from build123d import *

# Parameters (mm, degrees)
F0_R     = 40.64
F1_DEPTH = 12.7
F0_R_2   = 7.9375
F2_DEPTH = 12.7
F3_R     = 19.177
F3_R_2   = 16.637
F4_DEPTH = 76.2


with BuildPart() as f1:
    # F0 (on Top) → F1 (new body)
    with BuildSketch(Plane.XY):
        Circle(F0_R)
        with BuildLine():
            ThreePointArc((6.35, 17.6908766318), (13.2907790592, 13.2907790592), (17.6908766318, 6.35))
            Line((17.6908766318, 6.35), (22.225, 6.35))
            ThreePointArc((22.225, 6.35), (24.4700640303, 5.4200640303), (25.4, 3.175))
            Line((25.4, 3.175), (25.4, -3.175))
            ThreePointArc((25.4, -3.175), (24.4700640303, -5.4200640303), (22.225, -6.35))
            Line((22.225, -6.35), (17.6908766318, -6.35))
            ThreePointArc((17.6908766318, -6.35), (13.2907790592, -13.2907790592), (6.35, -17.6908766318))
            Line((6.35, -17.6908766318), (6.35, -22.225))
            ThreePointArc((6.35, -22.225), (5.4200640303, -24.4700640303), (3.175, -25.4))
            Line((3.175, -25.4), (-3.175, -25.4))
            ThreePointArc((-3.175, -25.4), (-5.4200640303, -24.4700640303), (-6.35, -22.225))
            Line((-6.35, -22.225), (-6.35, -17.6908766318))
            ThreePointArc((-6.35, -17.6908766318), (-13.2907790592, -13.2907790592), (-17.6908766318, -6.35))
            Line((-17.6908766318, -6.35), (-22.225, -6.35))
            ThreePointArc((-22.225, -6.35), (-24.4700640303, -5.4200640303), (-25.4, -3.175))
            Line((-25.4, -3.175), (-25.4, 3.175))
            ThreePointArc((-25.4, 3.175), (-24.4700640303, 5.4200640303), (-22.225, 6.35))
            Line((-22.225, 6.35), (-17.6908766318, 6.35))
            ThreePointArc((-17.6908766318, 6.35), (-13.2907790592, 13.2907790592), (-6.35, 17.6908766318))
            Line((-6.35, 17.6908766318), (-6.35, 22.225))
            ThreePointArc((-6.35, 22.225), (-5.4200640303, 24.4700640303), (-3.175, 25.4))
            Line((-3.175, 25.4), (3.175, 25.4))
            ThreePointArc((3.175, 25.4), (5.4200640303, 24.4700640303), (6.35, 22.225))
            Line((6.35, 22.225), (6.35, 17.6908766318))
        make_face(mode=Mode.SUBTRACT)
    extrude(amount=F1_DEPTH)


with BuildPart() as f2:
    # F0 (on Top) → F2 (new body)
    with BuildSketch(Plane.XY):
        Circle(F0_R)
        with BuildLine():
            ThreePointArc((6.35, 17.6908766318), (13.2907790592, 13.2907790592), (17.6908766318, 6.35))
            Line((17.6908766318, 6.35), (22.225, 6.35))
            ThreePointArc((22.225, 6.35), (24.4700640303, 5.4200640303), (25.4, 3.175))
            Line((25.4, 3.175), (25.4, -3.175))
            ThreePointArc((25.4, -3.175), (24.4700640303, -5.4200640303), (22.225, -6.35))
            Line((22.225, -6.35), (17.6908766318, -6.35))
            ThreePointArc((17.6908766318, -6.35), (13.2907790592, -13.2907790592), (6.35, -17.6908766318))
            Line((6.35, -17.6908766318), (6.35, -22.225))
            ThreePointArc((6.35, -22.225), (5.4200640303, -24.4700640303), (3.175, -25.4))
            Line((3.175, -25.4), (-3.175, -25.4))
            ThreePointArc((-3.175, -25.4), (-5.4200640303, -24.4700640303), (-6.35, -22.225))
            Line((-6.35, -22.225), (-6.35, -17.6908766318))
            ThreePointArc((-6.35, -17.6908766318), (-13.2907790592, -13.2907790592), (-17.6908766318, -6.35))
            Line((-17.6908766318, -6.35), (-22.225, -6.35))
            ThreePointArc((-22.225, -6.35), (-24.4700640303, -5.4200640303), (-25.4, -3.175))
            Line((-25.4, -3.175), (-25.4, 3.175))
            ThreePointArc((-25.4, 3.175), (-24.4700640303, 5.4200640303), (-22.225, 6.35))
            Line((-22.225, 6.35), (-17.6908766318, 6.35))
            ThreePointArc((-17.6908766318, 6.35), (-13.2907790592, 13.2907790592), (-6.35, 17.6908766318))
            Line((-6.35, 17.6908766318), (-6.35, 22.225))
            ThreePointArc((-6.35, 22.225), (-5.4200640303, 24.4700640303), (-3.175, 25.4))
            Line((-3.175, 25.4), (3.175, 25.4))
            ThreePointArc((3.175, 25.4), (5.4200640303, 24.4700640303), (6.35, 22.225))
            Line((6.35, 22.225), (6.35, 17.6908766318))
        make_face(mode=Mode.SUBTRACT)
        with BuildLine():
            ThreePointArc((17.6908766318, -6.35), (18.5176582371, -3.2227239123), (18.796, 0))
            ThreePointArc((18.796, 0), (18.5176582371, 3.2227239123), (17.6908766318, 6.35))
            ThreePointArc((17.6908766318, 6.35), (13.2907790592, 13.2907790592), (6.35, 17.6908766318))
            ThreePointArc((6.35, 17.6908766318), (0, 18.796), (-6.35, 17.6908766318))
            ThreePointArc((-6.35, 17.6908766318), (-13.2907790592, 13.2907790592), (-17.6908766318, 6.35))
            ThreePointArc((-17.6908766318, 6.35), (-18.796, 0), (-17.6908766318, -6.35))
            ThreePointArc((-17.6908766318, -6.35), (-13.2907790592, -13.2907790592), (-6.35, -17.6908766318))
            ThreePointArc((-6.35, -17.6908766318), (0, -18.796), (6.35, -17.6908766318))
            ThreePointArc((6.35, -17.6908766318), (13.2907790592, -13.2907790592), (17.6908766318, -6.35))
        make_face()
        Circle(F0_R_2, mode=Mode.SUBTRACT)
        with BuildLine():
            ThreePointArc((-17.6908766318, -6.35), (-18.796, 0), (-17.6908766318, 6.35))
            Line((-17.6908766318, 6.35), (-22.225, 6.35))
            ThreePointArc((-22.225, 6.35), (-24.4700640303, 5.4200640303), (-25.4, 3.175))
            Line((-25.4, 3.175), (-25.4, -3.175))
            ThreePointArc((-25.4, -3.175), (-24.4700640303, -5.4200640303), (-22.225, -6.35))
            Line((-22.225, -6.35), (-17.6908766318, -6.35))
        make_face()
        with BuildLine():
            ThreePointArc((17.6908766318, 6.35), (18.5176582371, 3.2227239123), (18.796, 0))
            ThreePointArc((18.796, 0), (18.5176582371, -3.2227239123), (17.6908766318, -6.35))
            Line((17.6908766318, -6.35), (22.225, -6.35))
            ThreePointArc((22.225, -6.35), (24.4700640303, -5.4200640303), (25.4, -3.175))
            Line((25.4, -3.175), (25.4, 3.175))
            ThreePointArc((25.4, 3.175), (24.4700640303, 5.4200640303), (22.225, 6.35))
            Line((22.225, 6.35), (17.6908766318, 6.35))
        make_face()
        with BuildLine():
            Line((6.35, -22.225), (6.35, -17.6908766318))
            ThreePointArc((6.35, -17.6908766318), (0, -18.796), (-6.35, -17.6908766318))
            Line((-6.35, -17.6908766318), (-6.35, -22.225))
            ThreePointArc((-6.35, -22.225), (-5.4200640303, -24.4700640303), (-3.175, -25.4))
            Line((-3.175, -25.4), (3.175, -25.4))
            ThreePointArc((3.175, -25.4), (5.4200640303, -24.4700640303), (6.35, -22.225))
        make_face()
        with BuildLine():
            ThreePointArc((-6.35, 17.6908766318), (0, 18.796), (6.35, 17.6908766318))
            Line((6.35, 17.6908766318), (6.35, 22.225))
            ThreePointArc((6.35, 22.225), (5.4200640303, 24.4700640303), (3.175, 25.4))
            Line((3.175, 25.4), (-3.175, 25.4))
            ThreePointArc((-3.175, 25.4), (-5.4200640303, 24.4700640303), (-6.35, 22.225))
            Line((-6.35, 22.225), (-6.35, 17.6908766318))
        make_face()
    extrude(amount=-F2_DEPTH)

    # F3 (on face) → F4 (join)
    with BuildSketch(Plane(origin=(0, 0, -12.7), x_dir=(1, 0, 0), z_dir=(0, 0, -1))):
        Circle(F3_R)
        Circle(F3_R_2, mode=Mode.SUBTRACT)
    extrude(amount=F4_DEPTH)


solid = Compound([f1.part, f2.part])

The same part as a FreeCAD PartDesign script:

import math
import FreeCAD as App
import Part
import Sketcher
Q = App.Units.Quantity

doc = App.newDocument("Part")
params = doc.addObject("Spreadsheet::Sheet", "Params")
for row, (alias, value) in enumerate([
    ("sketch1_diameter", "3.2 in"),
    ("sketch1_radius", "0.74 in"),
    ("sketch1_radius2", "0.125 in"),
    ("pad1_length", "0.5 in"),
    ("sketch2_diameter", "3.2 in"),
    ("sketch2_diameter2", "0.625 in"),
    ("pad2_length", "0.5 in"),
    ("sketch3_diameter", "1.51 in"),
    ("sketch3_diameter2", "1.31 in"),
    ("pad3_length", "3 in"),
], start=1):
    params.set(f"A{row}", alias)
    params.set(f"B{row}", "=" + value)
    params.setAlias(f"B{row}", alias)

body = doc.addObject("PartDesign::Body", "Body")

sketch1 = body.newObject("Sketcher::SketchObject", "Sketch")
sketch1.AttachmentSupport = (doc.getObject("XY_Plane"), [""])
sketch1.MapMode = "FlatFace"
sketch1.addGeometry(Part.Circle(App.Vector(0, 0, 0), App.Vector(0, 0, 1), 40.6), False)
sketch1.addGeometry(Part.LineSegment(App.Vector(6.3, 22.2, 0), App.Vector(6.3, 17.7, 0)), False)
sketch1.addGeometry(Part.ArcOfCircle(Part.Circle(App.Vector(0, 0, 0), App.Vector(0, 0, 1), 18.8), math.radians(20), math.radians(70)), False)
sketch1.addGeometry(Part.LineSegment(App.Vector(17.7, 6.3, 0), App.Vector(22.2, 6.3, 0)), False)
sketch1.addGeometry(Part.ArcOfCircle(Part.Circle(App.Vector(22.2, 3.2, 0), App.Vector(0, 0, 1), 3.2), math.radians(0), math.radians(90)), False)
sketch1.addGeometry(Part.LineSegment(App.Vector(25.4, 3.2, 0), App.Vector(25.4, -3.2, 0)), False)
sketch1.addGeometry(Part.ArcOfCircle(Part.Circle(App.Vector(22.2, -3.2, 0), App.Vector(0, 0, 1), 3.2), math.radians(-90), math.radians(0)), False)
sketch1.addGeometry(Part.LineSegment(App.Vector(22.2, -6.3, 0), App.Vector(17.7, -6.3, 0)), False)
sketch1.addGeometry(Part.ArcOfCircle(Part.Circle(App.Vector(0, 0, 0), App.Vector(0, 0, 1), 18.8), math.radians(-70), math.radians(-20)), False)
sketch1.addGeometry(Part.LineSegment(App.Vector(6.3, -17.7, 0), App.Vector(6.3, -22.2, 0)), False)
sketch1.addGeometry(Part.ArcOfCircle(Part.Circle(App.Vector(3.2, -22.2, 0), App.Vector(0, 0, 1), 3.2), math.radians(-90), math.radians(0)), False)
sketch1.addGeometry(Part.LineSegment(App.Vector(3.2, -25.4, 0), App.Vector(-3.2, -25.4, 0)), False)
sketch1.addGeometry(Part.ArcOfCircle(Part.Circle(App.Vector(-3.2, -22.2, 0), App.Vector(0, 0, 1), 3.2), math.radians(180), math.radians(270)), False)
sketch1.addGeometry(Part.LineSegment(App.Vector(-6.3, -22.2, 0), App.Vector(-6.3, -17.7, 0)), False)
sketch1.addGeometry(Part.ArcOfCircle(Part.Circle(App.Vector(0, 0, 0), App.Vector(0, 0, 1), 18.8), math.radians(-160), math.radians(-110)), False)
sketch1.addGeometry(Part.LineSegment(App.Vector(-17.7, -6.3, 0), App.Vector(-22.2, -6.3, 0)), False)
sketch1.addGeometry(Part.ArcOfCircle(Part.Circle(App.Vector(-22.2, -3.2, 0), App.Vector(0, 0, 1), 3.2), math.radians(180), math.radians(270)), False)
sketch1.addGeometry(Part.LineSegment(App.Vector(-25.4, -3.2, 0), App.Vector(-25.4, 3.2, 0)), False)
sketch1.addGeometry(Part.ArcOfCircle(Part.Circle(App.Vector(-22.2, 3.2, 0), App.Vector(0, 0, 1), 3.2), math.radians(90), math.radians(180)), False)
sketch1.addGeometry(Part.LineSegment(App.Vector(-22.2, 6.3, 0), App.Vector(-17.7, 6.3, 0)), False)
sketch1.addGeometry(Part.ArcOfCircle(Part.Circle(App.Vector(0, 0, 0), App.Vector(0, 0, 1), 18.8), math.radians(110), math.radians(160)), False)
sketch1.addGeometry(Part.LineSegment(App.Vector(-6.3, 17.7, 0), App.Vector(-6.3, 22.2, 0)), False)
sketch1.addGeometry(Part.ArcOfCircle(Part.Circle(App.Vector(-3.2, 22.2, 0), App.Vector(0, 0, 1), 3.2), math.radians(90), math.radians(180)), False)
sketch1.addGeometry(Part.LineSegment(App.Vector(-3.2, 25.4, 0), App.Vector(3.2, 25.4, 0)), False)
sketch1.addGeometry(Part.ArcOfCircle(Part.Circle(App.Vector(3.2, 22.2, 0), App.Vector(0, 0, 1), 3.2), math.radians(0), math.radians(90)), False)
sketch1.addConstraint(Sketcher.Constraint("Coincident", 1, 2, 2, 2))
sketch1.addConstraint(Sketcher.Constraint("Coincident", 2, 1, 3, 1))
sketch1.addConstraint(Sketcher.Constraint("Tangent", 3, 2, 4, 2))
sketch1.addConstraint(Sketcher.Constraint("Tangent", 4, 1, 5, 1))
sketch1.addConstraint(Sketcher.Constraint("Tangent", 5, 2, 6, 2))
sketch1.addConstraint(Sketcher.Constraint("Tangent", 6, 1, 7, 1))
sketch1.addConstraint(Sketcher.Constraint("Coincident", 7, 2, 8, 2))
sketch1.addConstraint(Sketcher.Constraint("Coincident", 8, 1, 9, 1))
sketch1.addConstraint(Sketcher.Constraint("Tangent", 9, 2, 10, 2))
sketch1.addConstraint(Sketcher.Constraint("Tangent", 10, 1, 11, 1))
sketch1.addConstraint(Sketcher.Constraint("Tangent", 11, 2, 12, 2))
sketch1.addConstraint(Sketcher.Constraint("Tangent", 12, 1, 13, 1))
sketch1.addConstraint(Sketcher.Constraint("Coincident", 13, 2, 14, 2))
sketch1.addConstraint(Sketcher.Constraint("Coincident", 14, 1, 15, 1))
sketch1.addConstraint(Sketcher.Constraint("Tangent", 15, 2, 16, 2))
sketch1.addConstraint(Sketcher.Constraint("Tangent", 16, 1, 17, 1))
sketch1.addConstraint(Sketcher.Constraint("Tangent", 17, 2, 18, 2))
sketch1.addConstraint(Sketcher.Constraint("Tangent", 18, 1, 19, 1))
sketch1.addConstraint(Sketcher.Constraint("Coincident", 19, 2, 20, 2))
sketch1.addConstraint(Sketcher.Constraint("Coincident", 20, 1, 21, 1))
sketch1.addConstraint(Sketcher.Constraint("Tangent", 21, 2, 22, 2))
sketch1.addConstraint(Sketcher.Constraint("Tangent", 22, 1, 23, 1))
sketch1.addConstraint(Sketcher.Constraint("Tangent", 23, 2, 24, 2))
sketch1.addConstraint(Sketcher.Constraint("Tangent", 24, 1, 1, 1))
sketch1.addConstraint(Sketcher.Constraint("Vertical", 1))
sketch1.addConstraint(Sketcher.Constraint("Horizontal", 3))
sketch1.addConstraint(Sketcher.Constraint("Vertical", 5))
sketch1.addConstraint(Sketcher.Constraint("Horizontal", 7))
sketch1.addConstraint(Sketcher.Constraint("Vertical", 9))
sketch1.addConstraint(Sketcher.Constraint("Horizontal", 11))
sketch1.addConstraint(Sketcher.Constraint("Vertical", 13))
sketch1.addConstraint(Sketcher.Constraint("Horizontal", 15))
sketch1.addConstraint(Sketcher.Constraint("Vertical", 17))
sketch1.addConstraint(Sketcher.Constraint("Horizontal", 19))
sketch1.addConstraint(Sketcher.Constraint("Vertical", 21))
sketch1.addConstraint(Sketcher.Constraint("Horizontal", 23))
sketch1.addConstraint(Sketcher.Constraint("Coincident", 0, 3, -1, 1))
sketch1.addConstraint(Sketcher.Constraint("Coincident", 2, 3, -1, 1))
sketch1.addConstraint(Sketcher.Constraint("Coincident", 8, 3, -1, 1))
sketch1.addConstraint(Sketcher.Constraint("Coincident", 14, 3, -1, 1))
sketch1.addConstraint(Sketcher.Constraint("Coincident", 20, 3, -1, 1))
sketch1.addConstraint(Sketcher.Constraint("Equal", 4, 6))
sketch1.addConstraint(Sketcher.Constraint("Equal", 2, 8))
sketch1.addConstraint(Sketcher.Constraint("Equal", 6, 10))
sketch1.addConstraint(Sketcher.Constraint("Equal", 10, 12))
sketch1.addConstraint(Sketcher.Constraint("Equal", 8, 14))
sketch1.addConstraint(Sketcher.Constraint("Equal", 12, 16))
sketch1.addConstraint(Sketcher.Constraint("Equal", 16, 18))
sketch1.addConstraint(Sketcher.Constraint("Equal", 14, 20))
sketch1.addConstraint(Sketcher.Constraint("Equal", 18, 22))
sketch1.addConstraint(Sketcher.Constraint("Equal", 22, 24))
sketch1.addConstraint(Sketcher.Constraint("Symmetric", 4, 3, 16, 3, -1, 1))
sketch1.addConstraint(Sketcher.Constraint("Symmetric", 10, 3, 22, 3, -1, 1))
sketch1.addConstraint(Sketcher.Constraint("Horizontal", 6, 3, 16, 3))
sketch1.addConstraint(Sketcher.Constraint("Horizontal", 4, 3, 18, 3))
sketch1.addConstraint(Sketcher.Constraint("Horizontal", 8, 1, 13, 2))
sketch1.addConstraint(Sketcher.Constraint("Horizontal", 1, 2, 20, 1))
sketch1.addConstraint(Sketcher.Constraint("Equal", 19, 1))
sketch1.addConstraint(Sketcher.Constraint("Equal", 23, 5))
sketch1.addConstraint(Sketcher.Constraint("Diameter", 0, Q("3.2 in")))
sketch1.addConstraint(Sketcher.Constraint("Radius", 2, Q("0.74 in")))
sketch1.addConstraint(Sketcher.Constraint("DistanceX", -1, 1, 4, 1, Q("1 in")))
sketch1.addConstraint(Sketcher.Constraint("Radius", 4, Q("0.125 in")))
sketch1.addConstraint(Sketcher.Constraint("DistanceY", 10, 3, 4, 3, Q("1 in")))
sketch1.setExpression("Constraints[59]", "Params.sketch1_diameter")
sketch1.setExpression("Constraints[60]", "Params.sketch1_radius")
sketch1.setExpression("Constraints[62]", "Params.sketch1_radius2")
pad1 = body.newObject("PartDesign::Pad", "Pad")
pad1.Profile = sketch1
pad1.setExpression("Length", "Params.pad1_length")
body2 = doc.addObject("PartDesign::Body", "Body001")

sketch2 = body2.newObject("Sketcher::SketchObject", "Sketch001")
sketch2.AttachmentSupport = (doc.getObject("XY_Plane001"), [""])
sketch2.MapMode = "FlatFace"
sketch2.addGeometry(Part.Circle(App.Vector(0, 0, 0), App.Vector(0, 0, 1), 41), False)
sketch2.addGeometry(Part.Circle(App.Vector(0, 0, 0), App.Vector(0, 0, 1), 8), False)
sketch2.addConstraint(Sketcher.Constraint("Coincident", 0, 3, -1, 1))
sketch2.addConstraint(Sketcher.Constraint("Coincident", 1, 3, -1, 1))
sketch2.addConstraint(Sketcher.Constraint("Diameter", 0, Q("3.2 in")))
sketch2.addConstraint(Sketcher.Constraint("Diameter", 1, Q("0.625 in")))
sketch2.setExpression("Constraints[2]", "Params.sketch2_diameter")
sketch2.setExpression("Constraints[3]", "Params.sketch2_diameter2")
pad2 = body2.newObject("PartDesign::Pad", "Pad001")
pad2.Profile = sketch2
pad2.setExpression("Length", "Params.pad2_length")
pad2.Reversed = True

sketch3 = body2.newObject("Sketcher::SketchObject", "Sketch002")
sketch3.AttachmentSupport = (doc.getObject("XY_Plane001"), [""])
sketch3.MapMode = "FlatFace"
sketch3.AttachmentOffset = App.Placement(App.Vector(0, 0, -0.5 * 25.4), App.Rotation())
sketch3.addGeometry(Part.Circle(App.Vector(0, 0, 0), App.Vector(0, 0, 1), 19), False)
sketch3.addGeometry(Part.Circle(App.Vector(0, 0, 0), App.Vector(0, 0, 1), 17), False)
sketch3.addConstraint(Sketcher.Constraint("Coincident", 0, 3, -1, 1))
sketch3.addConstraint(Sketcher.Constraint("Coincident", 1, 3, -1, 1))
sketch3.addConstraint(Sketcher.Constraint("Diameter", 0, Q("1.51 in")))
sketch3.addConstraint(Sketcher.Constraint("Diameter", 1, Q("1.31 in")))
sketch3.setExpression("Constraints[2]", "Params.sketch3_diameter")
sketch3.setExpression("Constraints[3]", "Params.sketch3_diameter2")
pad3 = body2.newObject("PartDesign::Pad", "Pad002")
pad3.Profile = sketch3
pad3.setExpression("Length", "Params.pad3_length")
pad3.Reversed = True

doc.recompute()
